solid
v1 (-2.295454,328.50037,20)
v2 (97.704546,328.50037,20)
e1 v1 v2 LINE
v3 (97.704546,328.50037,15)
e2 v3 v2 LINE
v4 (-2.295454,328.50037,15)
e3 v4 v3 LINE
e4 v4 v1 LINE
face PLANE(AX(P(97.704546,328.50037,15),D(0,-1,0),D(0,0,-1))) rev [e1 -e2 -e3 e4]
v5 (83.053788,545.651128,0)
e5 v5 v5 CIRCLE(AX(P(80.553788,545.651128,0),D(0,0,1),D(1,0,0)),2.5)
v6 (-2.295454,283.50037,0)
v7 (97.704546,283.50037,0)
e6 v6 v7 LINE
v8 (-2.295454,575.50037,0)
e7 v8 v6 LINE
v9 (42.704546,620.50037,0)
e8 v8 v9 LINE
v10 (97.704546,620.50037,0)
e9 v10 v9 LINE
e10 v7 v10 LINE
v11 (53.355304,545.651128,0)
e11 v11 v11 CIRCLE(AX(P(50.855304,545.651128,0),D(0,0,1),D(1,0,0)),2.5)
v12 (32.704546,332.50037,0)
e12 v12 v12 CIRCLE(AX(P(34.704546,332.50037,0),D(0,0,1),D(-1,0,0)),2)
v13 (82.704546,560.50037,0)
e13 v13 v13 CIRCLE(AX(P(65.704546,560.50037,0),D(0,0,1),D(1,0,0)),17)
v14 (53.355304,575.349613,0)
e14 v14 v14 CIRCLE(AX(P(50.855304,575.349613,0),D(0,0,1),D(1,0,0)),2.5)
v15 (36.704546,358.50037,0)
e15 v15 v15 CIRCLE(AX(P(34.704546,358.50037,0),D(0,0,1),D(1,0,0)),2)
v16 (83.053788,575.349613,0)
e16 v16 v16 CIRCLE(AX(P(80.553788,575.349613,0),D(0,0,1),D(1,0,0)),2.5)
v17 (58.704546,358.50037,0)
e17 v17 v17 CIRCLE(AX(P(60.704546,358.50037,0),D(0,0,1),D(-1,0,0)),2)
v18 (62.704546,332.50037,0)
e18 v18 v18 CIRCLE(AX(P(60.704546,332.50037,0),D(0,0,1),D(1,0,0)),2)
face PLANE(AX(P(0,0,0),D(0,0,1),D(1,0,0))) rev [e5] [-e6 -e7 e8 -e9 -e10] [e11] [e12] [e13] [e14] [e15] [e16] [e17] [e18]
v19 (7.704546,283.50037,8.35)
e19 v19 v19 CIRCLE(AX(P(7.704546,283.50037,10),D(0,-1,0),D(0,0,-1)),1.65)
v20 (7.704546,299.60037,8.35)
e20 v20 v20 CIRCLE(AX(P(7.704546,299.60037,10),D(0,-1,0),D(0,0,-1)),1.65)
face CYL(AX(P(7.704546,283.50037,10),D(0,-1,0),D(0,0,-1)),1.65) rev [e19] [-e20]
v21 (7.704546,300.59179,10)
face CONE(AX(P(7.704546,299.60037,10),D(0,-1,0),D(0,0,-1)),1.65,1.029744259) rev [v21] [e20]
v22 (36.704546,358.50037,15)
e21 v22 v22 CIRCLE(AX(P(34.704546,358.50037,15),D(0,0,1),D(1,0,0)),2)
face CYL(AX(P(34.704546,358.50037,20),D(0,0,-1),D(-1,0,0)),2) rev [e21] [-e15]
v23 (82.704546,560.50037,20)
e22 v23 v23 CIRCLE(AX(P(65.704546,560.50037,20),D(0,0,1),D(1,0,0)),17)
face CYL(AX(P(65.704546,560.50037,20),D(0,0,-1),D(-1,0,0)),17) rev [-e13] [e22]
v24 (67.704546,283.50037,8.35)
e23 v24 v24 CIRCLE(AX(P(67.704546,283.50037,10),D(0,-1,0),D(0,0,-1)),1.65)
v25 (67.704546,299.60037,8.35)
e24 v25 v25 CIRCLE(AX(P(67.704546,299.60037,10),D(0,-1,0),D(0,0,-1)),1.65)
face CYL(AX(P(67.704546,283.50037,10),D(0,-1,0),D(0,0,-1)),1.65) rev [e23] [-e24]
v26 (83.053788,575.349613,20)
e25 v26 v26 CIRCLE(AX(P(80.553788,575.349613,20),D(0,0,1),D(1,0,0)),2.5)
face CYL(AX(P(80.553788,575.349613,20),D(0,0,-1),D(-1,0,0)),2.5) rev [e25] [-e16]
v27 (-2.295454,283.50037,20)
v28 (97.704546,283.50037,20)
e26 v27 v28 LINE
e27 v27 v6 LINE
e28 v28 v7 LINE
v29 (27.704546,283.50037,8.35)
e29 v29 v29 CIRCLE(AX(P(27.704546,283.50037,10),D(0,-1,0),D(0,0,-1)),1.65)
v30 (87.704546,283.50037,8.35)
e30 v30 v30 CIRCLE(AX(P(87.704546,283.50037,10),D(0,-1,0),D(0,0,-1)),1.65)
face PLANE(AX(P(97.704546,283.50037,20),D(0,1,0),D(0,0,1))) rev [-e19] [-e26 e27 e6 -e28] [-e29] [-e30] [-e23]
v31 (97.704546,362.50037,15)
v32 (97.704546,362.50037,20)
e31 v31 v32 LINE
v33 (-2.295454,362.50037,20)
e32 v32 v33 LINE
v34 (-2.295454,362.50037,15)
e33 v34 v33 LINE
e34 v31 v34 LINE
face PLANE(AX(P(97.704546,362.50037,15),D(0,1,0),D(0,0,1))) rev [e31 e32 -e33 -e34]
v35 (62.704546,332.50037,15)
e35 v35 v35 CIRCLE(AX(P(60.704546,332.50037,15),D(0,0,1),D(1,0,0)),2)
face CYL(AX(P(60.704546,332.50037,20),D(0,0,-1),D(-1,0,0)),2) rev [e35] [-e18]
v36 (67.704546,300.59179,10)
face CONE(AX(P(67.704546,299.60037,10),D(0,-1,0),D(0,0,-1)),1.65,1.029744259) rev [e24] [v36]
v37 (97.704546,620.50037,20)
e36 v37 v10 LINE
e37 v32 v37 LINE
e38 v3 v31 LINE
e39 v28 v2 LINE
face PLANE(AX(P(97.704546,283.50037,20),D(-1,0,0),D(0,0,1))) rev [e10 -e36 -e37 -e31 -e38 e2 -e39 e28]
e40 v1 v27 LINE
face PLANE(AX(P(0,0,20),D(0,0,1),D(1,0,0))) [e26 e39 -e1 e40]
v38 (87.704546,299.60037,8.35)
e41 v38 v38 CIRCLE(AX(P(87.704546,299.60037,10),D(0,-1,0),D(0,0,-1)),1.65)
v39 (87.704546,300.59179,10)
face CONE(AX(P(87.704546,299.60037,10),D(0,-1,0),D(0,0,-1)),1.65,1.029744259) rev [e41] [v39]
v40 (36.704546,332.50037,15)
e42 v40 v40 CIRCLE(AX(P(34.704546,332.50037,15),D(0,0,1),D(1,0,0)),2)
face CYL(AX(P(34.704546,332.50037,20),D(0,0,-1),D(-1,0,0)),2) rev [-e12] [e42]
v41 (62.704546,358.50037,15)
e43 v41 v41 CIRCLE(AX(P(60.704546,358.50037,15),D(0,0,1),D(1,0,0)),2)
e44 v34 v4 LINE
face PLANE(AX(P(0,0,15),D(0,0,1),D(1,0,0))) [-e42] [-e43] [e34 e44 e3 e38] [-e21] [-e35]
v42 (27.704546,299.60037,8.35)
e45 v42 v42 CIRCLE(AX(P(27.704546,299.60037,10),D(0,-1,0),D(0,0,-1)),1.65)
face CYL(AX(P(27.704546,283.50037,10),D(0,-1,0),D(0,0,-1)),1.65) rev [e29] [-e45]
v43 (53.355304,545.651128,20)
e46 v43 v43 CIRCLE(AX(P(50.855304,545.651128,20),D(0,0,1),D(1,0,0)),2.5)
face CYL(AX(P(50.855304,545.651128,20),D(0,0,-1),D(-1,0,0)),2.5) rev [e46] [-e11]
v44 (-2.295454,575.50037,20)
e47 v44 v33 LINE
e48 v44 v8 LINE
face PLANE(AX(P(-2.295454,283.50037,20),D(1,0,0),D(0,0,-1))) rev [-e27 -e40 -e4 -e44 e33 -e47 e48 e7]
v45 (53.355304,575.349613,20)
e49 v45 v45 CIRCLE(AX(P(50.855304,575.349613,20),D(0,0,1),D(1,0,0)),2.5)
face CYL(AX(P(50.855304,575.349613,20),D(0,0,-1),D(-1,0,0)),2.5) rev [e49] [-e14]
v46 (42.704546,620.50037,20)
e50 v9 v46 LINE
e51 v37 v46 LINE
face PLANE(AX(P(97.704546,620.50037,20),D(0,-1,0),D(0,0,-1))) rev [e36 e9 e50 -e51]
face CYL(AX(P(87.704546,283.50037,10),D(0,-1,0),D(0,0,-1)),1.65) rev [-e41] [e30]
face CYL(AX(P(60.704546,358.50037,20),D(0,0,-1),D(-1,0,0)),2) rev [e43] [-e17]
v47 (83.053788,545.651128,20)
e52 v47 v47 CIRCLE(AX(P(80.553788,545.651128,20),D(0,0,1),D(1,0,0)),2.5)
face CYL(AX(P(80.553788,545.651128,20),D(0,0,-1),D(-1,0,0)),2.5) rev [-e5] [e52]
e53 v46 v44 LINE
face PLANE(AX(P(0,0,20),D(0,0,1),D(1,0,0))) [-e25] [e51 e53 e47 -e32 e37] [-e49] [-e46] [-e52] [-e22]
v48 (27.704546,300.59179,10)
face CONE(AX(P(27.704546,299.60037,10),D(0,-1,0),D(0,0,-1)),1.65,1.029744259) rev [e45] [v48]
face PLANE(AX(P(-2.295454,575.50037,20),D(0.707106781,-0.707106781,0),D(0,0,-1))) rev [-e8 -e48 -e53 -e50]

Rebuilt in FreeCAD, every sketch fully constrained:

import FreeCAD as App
import Part
import Sketcher

V = App.Vector
Q = App.Units.Quantity


def edges_at(feature, points):
    """Names of the edges that pass closest to the given points."""
    edges = feature.Shape.Edges
    near = lambda p: min(range(len(edges)), key=lambda i: edges[i].distToShape(Part.Vertex(*p))[0])
    return sorted({f"Edge{near(p) + 1}" for p in points})


def add_polygon(sketch, points):
    """Adds a closed chain of lines whose ends are joined by coincident constraints."""
    first, n = sketch.GeometryCount, len(points)
    for a, b in zip(points, points[1:] + points[:1]):
        sketch.addGeometry(Part.LineSegment(App.Vector(*a, 0), App.Vector(*b, 0)), False)
    for i in range(n):
        sketch.addConstraint(Sketcher.Constraint("Coincident", first + i, 2, first + (i + 1) % n, 1))

doc = App.newDocument("Part")
body = doc.addObject("PartDesign::Body", "Body")

# Sketch on XY plane
sketch1 = body.newObject("Sketcher::SketchObject", "Sketch")
sketch1.AttachmentSupport = (doc.getObject("XY_Plane"), [""])
sketch1.MapMode = "FlatFace"
add_polygon(sketch1, [(-2.3, 620.5), (-2.3, 283.5), (97.7, 283.5), (97.7, 620.5)])  # lines 0-3
sketch1.addGeometry(Part.Circle(V(34.7, 332.5, 0), V(0, 0, 1), 2), False)  # 4
sketch1.addGeometry(Part.Circle(V(34.7, 358.5, 0), V(0, 0, 1), 2), False)  # 5
sketch1.addGeometry(Part.Circle(V(60.7, 332.5, 0), V(0, 0, 1), 2), False)  # 6
sketch1.addGeometry(Part.Circle(V(60.7, 358.5, 0), V(0, 0, 1), 2), False)  # 7
sketch1.addGeometry(Part.Circle(V(50.9, 545.7, 0), V(0, 0, 1), 2.5), False)  # 8
sketch1.addGeometry(Part.Circle(V(50.9, 575.3, 0), V(0, 0, 1), 2.5), False)  # 9
sketch1.addGeometry(Part.Circle(V(65.7, 560.5, 0), V(0, 0, 1), 17), False)  # 10
sketch1.addGeometry(Part.Circle(V(80.6, 545.7, 0), V(0, 0, 1), 2.5), False)  # 11
sketch1.addGeometry(Part.Circle(V(80.6, 575.3, 0), V(0, 0, 1), 2.5), False)  # 12
sketch1.addConstraint(Sketcher.Constraint("Vertical", 0))
sketch1.addConstraint(Sketcher.Constraint("Horizontal", 1))
sketch1.addConstraint(Sketcher.Constraint("Vertical", 2))
sketch1.addConstraint(Sketcher.Constraint("Horizontal", 3))
sketch1.addConstraint(Sketcher.Constraint("Equal", 4, 5))
sketch1.addConstraint(Sketcher.Constraint("Equal", 5, 6))
sketch1.addConstraint(Sketcher.Constraint("Equal", 6, 7))
sketch1.addConstraint(Sketcher.Constraint("Equal", 8, 9))
sketch1.addConstraint(Sketcher.Constraint("Equal", 9, 11))
sketch1.addConstraint(Sketcher.Constraint("Equal", 11, 12))
sketch1.addConstraint(Sketcher.Constraint("Horizontal", 4, 3, 6, 3))
sketch1.addConstraint(Sketcher.Constraint("Horizontal", 5, 3, 7, 3))
sketch1.addConstraint(Sketcher.Constraint("Horizontal", 8, 3, 11, 3))
sketch1.addConstraint(Sketcher.Constraint("Horizontal", 9, 3, 12, 3))
sketch1.addConstraint(Sketcher.Constraint("Vertical", 4, 3, 5, 3))
sketch1.addConstraint(Sketcher.Constraint("Vertical", 6, 3, 7, 3))
sketch1.addConstraint(Sketcher.Constraint("Vertical", 8, 3, 9, 3))
sketch1.addConstraint(Sketcher.Constraint("Vertical", 11, 3, 12, 3))
sketch1.addConstraint(Sketcher.Constraint("Diameter", 4, Q("4 mm")))
sketch1.addConstraint(Sketcher.Constraint("Diameter", 8, Q("5 mm")))
sketch1.addConstraint(Sketcher.Constraint("Diameter", 10, Q("34 mm")))
sketch1.addConstraint(Sketcher.Constraint("DistanceX", 1, 1, 1, 2, Q("100 mm")))
sketch1.addConstraint(Sketcher.Constraint("DistanceY", 0, 2, 0, 1, Q("337 mm")))
sketch1.addConstraint(Sketcher.Constraint("DistanceY", 4, 3, 5, 3, Q("26 mm")))
sketch1.addConstraint(Sketcher.Constraint("DistanceX", 4, 3, 6, 3, Q("26 mm")))
sketch1.addConstraint(Sketcher.Constraint("DistanceX", 7, 3, 10, 3, Q("5 mm")))
sketch1.addConstraint(Sketcher.Constraint("DistanceY", 7, 3, 10, 3, Q("202 mm")))
sketch1.addConstraint(Sketcher.Constraint("DistanceX", 0, 2, 4, 3, Q("37 mm")))
sketch1.addConstraint(Sketcher.Constraint("DistanceY", 0, 2, 4, 3, Q("49 mm")))
sketch1.addConstraint(Sketcher.Constraint("DistanceY", -1, 1, 4, 3, Q("332.50037 mm")))
sketch1.addConstraint(Sketcher.Constraint("DistanceY", -1, 1, 8, 3, Q("545.651128 mm")))
sketch1.addConstraint(Sketcher.Constraint("DistanceX", -1, 1, 11, 3, Q("80.553788 mm")))
sketch1.addConstraint(Sketcher.Constraint("DistanceX", -1, 1, 4, 3, Q("34.704546 mm")))
sketch1.addConstraint(Sketcher.Constraint("DistanceX", -1, 1, 8, 3, Q("50.855304 mm")))
sketch1.addConstraint(Sketcher.Constraint("DistanceY", -1, 1, 9, 3, Q("575.349613 mm")))
pad1 = body.newObject("PartDesign::Pad", "Pad")
pad1.Profile = sketch1
pad1.Length = 20
doc.recompute()

chamfer = body.newObject("PartDesign::Chamfer", "Chamfer")
chamfer.Base = (pad1, edges_at(pad1, [(-2.295, 620.5, 10)]))
chamfer.Size = 45

# Sketch on XY plane
sketch2 = body.newObject("Sketcher::SketchObject", "Sketch001")
sketch2.AttachmentSupport = (doc.getObject("XY_Plane"), [""])
sketch2.MapMode = "FlatFace"
sketch2.AttachmentOffset = App.Placement(V(0, 0, 20), App.Rotation())
add_polygon(sketch2, [(-2, 363), (-2, 329), (98, 329), (98, 363)])  # lines 0-3
sketch2.addConstraint(Sketcher.Constraint("Vertical", 0))
sketch2.addConstraint(Sketcher.Constraint("Horizontal", 1))
sketch2.addConstraint(Sketcher.Constraint("Vertical", 2))
sketch2.addConstraint(Sketcher.Constraint("Horizontal", 3))
sketch2.addConstraint(Sketcher.Constraint("DistanceX", 1, 1, 1, 2, Q("100 mm")))
sketch2.addConstraint(Sketcher.Constraint("DistanceY", 0, 2, 0, 1, Q("34 mm")))
sketch2.addConstraint(Sketcher.Constraint("DistanceY", -1, 1, 0, 2, Q("328.50037 mm")))
sketch2.addConstraint(Sketcher.Constraint("DistanceX", 0, 2, -1, 1, Q("2.295454 mm")))
pocket1 = body.newObject("PartDesign::Pocket", "Pocket")
pocket1.Profile = sketch2
pocket1.Length = 5

# Sketch on XZ plane
sketch3 = body.newObject("Sketcher::SketchObject", "Sketch002")
sketch3.AttachmentSupport = (doc.getObject("XZ_Plane"), [""])
sketch3.MapMode = "FlatFace"
sketch3.AttachmentOffset = App.Placement(V(0, 0, -283.50037), App.Rotation())
sketch3.addGeometry(Part.Circle(V(7.7, 10, 0), V(0, 0, 1), 1.6), False)
sketch3.addGeometry(Part.Circle(V(27.7, 10, 0), V(0, 0, 1), 1.6), False)
sketch3.addGeometry(Part.Circle(V(67.7, 10, 0), V(0, 0, 1), 1.6), False)
sketch3.addGeometry(Part.Circle(V(87.7, 10, 0), V(0, 0, 1), 1.6), False)
sketch3.addConstraint(Sketcher.Constraint("Equal", 0, 1))
sketch3.addConstraint(Sketcher.Constraint("Equal", 1, 2))
sketch3.addConstraint(Sketcher.Constraint("Equal", 2, 3))
sketch3.addConstraint(Sketcher.Constraint("Horizontal", 0, 3, 1, 3))
sketch3.addConstraint(Sketcher.Constraint("Horizontal", 1, 3, 2, 3))
sketch3.addConstraint(Sketcher.Constraint("Horizontal", 2, 3, 3, 3))
sketch3.addConstraint(Sketcher.Constraint("Diameter", 0, Q("3.3 mm")))
sketch3.addConstraint(Sketcher.Constraint("DistanceY", -1, 1, 0, 3, Q("10 mm")))
sketch3.addConstraint(Sketcher.Constraint("DistanceX", 0, 3, 1, 3, Q("20 mm")))
sketch3.addConstraint(Sketcher.Constraint("DistanceX", 1, 3, 2, 3, Q("40 mm")))
sketch3.addConstraint(Sketcher.Constraint("DistanceX", 2, 3, 3, 3, Q("20 mm")))
sketch3.addConstraint(Sketcher.Constraint("DistanceX", -1, 1, 0, 3, Q("7.704546 mm")))
doc.recompute()
hole = body.newObject("PartDesign::Hole", "Hole")
hole.Profile = sketch3
hole.ThreadType = "None"
hole.Diameter = 3.3
hole.DepthType = "Dimension"
hole.Depth = 16.1
hole.DrillPoint = "Angled"
hole.DrillPointAngle = 118

doc.recompute()
